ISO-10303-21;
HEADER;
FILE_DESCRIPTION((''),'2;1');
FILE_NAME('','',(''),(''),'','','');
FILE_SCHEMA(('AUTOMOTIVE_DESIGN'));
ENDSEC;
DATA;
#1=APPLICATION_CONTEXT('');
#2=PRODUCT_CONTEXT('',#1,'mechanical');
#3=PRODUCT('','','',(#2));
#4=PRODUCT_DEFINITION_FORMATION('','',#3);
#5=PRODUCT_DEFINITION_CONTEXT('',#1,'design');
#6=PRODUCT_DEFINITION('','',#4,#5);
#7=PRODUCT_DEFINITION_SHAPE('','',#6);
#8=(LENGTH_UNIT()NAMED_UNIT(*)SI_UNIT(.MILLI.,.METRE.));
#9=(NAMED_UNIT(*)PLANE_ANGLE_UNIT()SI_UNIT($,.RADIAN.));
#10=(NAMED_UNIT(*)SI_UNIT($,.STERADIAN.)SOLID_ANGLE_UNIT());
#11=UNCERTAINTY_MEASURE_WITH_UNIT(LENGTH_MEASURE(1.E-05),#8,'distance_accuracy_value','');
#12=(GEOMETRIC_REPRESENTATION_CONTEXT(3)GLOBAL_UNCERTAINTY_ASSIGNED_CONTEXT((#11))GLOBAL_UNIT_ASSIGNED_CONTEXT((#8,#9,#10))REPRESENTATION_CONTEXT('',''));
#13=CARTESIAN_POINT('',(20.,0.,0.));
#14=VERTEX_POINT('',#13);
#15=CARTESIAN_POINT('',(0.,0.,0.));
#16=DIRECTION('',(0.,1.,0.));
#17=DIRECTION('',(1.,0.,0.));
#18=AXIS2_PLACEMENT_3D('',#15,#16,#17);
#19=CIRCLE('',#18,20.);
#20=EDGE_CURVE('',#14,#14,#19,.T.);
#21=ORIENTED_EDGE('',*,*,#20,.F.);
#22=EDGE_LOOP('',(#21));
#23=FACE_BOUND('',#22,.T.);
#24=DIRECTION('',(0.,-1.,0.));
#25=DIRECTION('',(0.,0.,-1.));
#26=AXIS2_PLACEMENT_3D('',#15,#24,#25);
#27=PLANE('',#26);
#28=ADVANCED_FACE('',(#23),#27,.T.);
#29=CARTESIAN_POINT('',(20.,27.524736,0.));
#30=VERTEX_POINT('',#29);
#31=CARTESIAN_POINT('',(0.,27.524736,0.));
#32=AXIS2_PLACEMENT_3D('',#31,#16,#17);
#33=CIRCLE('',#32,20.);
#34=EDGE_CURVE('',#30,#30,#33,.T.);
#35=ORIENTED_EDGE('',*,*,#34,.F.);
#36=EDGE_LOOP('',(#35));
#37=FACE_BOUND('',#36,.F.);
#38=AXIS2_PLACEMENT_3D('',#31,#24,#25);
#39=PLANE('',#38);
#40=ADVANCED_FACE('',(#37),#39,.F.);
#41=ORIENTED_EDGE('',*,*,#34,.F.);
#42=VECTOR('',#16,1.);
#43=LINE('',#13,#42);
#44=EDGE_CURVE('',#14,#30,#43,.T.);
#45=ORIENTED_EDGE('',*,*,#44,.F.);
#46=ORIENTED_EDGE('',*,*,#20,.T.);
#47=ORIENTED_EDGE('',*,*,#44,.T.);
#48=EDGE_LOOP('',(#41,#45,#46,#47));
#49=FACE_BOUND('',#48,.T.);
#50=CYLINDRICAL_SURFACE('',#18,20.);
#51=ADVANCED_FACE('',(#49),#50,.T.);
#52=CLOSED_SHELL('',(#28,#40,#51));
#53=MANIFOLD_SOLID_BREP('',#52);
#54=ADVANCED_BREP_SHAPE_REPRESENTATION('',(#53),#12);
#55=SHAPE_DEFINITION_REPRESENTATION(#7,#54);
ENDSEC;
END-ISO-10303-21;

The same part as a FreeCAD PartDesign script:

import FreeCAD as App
import Part
import Sketcher

V = App.Vector

doc = App.newDocument("Part")
body = doc.addObject("PartDesign::Body", "Body")

sketch1 = body.newObject("Sketcher::SketchObject", "Sketch")
sketch1.AttachmentSupport = (doc.getObject("XZ_Plane"), [""])
sketch1.MapMode = "FlatFace"
sketch1.addGeometry(Part.Circle(V(0, 0, 0), V(0, 0, 1), 20), False)
sketch1.addConstraint([
    Sketcher.Constraint("Coincident", 0, 3, -1, 1),
    Sketcher.Constraint("Diameter", 0, 40.0),
])

sketch2 = body.newObject("Sketcher::SketchObject", "Sketch001")
sketch2.AttachmentSupport = (doc.getObject("XY_Plane"), [""])
sketch2.MapMode = "FlatFace"
sketch2.addGeometry(Part.LineSegment(V(0, 0, 0), V(0, 27.524736, 0)), False)
sketch2.addConstraint([
    Sketcher.Constraint("Vertical", 0),
    Sketcher.Constraint("Coincident", 0, 1, -1, 1),
    Sketcher.Constraint("DistanceY", 0, 1, 0, 2, 27.524736),
])
doc.recompute()

additivepipe = body.newObject("PartDesign::AdditivePipe", "AdditivePipe")
additivepipe.Profile = sketch1
additivepipe.Spine = (sketch2, ["Edge1"])

doc.recompute()
